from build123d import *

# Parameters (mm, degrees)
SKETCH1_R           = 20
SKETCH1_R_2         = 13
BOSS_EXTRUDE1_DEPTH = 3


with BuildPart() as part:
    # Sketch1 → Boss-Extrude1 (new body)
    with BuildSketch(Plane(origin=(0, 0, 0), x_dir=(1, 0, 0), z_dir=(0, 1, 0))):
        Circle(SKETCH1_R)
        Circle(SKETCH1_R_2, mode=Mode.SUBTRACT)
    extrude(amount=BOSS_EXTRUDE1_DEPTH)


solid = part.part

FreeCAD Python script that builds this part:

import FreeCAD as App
import Part
import Sketcher

V = App.Vector

doc = App.newDocument("Part")
body = doc.addObject("PartDesign::Body", "Body")

# Sketch on XZ plane
sketch1 = body.newObject("Sketcher::SketchObject", "Sketch")
sketch1.AttachmentSupport = (doc.getObject("XZ_Plane"), [""])
sketch1.MapMode = "FlatFace"
sketch1.addGeometry([
    Part.Circle(V(0, 0, 0), V(0, 0, 1), 20),
    Part.Circle(V(0, 0, 0), V(0, 0, 1), 13),
], False)
sketch1.addConstraint([
    Sketcher.Constraint("Coincident", 0, 3, -1, 1),
    Sketcher.Constraint("Coincident", 1, 3, -1, 1),
    Sketcher.Constraint("Diameter", 0, 40.0),
    Sketcher.Constraint("Diameter", 1, 26.0),
])
pad1 = body.newObject("PartDesign::Pad", "Pad")
pad1.Profile = sketch1
pad1.Length = 3
pad1.Reversed = True

doc.recompute()
